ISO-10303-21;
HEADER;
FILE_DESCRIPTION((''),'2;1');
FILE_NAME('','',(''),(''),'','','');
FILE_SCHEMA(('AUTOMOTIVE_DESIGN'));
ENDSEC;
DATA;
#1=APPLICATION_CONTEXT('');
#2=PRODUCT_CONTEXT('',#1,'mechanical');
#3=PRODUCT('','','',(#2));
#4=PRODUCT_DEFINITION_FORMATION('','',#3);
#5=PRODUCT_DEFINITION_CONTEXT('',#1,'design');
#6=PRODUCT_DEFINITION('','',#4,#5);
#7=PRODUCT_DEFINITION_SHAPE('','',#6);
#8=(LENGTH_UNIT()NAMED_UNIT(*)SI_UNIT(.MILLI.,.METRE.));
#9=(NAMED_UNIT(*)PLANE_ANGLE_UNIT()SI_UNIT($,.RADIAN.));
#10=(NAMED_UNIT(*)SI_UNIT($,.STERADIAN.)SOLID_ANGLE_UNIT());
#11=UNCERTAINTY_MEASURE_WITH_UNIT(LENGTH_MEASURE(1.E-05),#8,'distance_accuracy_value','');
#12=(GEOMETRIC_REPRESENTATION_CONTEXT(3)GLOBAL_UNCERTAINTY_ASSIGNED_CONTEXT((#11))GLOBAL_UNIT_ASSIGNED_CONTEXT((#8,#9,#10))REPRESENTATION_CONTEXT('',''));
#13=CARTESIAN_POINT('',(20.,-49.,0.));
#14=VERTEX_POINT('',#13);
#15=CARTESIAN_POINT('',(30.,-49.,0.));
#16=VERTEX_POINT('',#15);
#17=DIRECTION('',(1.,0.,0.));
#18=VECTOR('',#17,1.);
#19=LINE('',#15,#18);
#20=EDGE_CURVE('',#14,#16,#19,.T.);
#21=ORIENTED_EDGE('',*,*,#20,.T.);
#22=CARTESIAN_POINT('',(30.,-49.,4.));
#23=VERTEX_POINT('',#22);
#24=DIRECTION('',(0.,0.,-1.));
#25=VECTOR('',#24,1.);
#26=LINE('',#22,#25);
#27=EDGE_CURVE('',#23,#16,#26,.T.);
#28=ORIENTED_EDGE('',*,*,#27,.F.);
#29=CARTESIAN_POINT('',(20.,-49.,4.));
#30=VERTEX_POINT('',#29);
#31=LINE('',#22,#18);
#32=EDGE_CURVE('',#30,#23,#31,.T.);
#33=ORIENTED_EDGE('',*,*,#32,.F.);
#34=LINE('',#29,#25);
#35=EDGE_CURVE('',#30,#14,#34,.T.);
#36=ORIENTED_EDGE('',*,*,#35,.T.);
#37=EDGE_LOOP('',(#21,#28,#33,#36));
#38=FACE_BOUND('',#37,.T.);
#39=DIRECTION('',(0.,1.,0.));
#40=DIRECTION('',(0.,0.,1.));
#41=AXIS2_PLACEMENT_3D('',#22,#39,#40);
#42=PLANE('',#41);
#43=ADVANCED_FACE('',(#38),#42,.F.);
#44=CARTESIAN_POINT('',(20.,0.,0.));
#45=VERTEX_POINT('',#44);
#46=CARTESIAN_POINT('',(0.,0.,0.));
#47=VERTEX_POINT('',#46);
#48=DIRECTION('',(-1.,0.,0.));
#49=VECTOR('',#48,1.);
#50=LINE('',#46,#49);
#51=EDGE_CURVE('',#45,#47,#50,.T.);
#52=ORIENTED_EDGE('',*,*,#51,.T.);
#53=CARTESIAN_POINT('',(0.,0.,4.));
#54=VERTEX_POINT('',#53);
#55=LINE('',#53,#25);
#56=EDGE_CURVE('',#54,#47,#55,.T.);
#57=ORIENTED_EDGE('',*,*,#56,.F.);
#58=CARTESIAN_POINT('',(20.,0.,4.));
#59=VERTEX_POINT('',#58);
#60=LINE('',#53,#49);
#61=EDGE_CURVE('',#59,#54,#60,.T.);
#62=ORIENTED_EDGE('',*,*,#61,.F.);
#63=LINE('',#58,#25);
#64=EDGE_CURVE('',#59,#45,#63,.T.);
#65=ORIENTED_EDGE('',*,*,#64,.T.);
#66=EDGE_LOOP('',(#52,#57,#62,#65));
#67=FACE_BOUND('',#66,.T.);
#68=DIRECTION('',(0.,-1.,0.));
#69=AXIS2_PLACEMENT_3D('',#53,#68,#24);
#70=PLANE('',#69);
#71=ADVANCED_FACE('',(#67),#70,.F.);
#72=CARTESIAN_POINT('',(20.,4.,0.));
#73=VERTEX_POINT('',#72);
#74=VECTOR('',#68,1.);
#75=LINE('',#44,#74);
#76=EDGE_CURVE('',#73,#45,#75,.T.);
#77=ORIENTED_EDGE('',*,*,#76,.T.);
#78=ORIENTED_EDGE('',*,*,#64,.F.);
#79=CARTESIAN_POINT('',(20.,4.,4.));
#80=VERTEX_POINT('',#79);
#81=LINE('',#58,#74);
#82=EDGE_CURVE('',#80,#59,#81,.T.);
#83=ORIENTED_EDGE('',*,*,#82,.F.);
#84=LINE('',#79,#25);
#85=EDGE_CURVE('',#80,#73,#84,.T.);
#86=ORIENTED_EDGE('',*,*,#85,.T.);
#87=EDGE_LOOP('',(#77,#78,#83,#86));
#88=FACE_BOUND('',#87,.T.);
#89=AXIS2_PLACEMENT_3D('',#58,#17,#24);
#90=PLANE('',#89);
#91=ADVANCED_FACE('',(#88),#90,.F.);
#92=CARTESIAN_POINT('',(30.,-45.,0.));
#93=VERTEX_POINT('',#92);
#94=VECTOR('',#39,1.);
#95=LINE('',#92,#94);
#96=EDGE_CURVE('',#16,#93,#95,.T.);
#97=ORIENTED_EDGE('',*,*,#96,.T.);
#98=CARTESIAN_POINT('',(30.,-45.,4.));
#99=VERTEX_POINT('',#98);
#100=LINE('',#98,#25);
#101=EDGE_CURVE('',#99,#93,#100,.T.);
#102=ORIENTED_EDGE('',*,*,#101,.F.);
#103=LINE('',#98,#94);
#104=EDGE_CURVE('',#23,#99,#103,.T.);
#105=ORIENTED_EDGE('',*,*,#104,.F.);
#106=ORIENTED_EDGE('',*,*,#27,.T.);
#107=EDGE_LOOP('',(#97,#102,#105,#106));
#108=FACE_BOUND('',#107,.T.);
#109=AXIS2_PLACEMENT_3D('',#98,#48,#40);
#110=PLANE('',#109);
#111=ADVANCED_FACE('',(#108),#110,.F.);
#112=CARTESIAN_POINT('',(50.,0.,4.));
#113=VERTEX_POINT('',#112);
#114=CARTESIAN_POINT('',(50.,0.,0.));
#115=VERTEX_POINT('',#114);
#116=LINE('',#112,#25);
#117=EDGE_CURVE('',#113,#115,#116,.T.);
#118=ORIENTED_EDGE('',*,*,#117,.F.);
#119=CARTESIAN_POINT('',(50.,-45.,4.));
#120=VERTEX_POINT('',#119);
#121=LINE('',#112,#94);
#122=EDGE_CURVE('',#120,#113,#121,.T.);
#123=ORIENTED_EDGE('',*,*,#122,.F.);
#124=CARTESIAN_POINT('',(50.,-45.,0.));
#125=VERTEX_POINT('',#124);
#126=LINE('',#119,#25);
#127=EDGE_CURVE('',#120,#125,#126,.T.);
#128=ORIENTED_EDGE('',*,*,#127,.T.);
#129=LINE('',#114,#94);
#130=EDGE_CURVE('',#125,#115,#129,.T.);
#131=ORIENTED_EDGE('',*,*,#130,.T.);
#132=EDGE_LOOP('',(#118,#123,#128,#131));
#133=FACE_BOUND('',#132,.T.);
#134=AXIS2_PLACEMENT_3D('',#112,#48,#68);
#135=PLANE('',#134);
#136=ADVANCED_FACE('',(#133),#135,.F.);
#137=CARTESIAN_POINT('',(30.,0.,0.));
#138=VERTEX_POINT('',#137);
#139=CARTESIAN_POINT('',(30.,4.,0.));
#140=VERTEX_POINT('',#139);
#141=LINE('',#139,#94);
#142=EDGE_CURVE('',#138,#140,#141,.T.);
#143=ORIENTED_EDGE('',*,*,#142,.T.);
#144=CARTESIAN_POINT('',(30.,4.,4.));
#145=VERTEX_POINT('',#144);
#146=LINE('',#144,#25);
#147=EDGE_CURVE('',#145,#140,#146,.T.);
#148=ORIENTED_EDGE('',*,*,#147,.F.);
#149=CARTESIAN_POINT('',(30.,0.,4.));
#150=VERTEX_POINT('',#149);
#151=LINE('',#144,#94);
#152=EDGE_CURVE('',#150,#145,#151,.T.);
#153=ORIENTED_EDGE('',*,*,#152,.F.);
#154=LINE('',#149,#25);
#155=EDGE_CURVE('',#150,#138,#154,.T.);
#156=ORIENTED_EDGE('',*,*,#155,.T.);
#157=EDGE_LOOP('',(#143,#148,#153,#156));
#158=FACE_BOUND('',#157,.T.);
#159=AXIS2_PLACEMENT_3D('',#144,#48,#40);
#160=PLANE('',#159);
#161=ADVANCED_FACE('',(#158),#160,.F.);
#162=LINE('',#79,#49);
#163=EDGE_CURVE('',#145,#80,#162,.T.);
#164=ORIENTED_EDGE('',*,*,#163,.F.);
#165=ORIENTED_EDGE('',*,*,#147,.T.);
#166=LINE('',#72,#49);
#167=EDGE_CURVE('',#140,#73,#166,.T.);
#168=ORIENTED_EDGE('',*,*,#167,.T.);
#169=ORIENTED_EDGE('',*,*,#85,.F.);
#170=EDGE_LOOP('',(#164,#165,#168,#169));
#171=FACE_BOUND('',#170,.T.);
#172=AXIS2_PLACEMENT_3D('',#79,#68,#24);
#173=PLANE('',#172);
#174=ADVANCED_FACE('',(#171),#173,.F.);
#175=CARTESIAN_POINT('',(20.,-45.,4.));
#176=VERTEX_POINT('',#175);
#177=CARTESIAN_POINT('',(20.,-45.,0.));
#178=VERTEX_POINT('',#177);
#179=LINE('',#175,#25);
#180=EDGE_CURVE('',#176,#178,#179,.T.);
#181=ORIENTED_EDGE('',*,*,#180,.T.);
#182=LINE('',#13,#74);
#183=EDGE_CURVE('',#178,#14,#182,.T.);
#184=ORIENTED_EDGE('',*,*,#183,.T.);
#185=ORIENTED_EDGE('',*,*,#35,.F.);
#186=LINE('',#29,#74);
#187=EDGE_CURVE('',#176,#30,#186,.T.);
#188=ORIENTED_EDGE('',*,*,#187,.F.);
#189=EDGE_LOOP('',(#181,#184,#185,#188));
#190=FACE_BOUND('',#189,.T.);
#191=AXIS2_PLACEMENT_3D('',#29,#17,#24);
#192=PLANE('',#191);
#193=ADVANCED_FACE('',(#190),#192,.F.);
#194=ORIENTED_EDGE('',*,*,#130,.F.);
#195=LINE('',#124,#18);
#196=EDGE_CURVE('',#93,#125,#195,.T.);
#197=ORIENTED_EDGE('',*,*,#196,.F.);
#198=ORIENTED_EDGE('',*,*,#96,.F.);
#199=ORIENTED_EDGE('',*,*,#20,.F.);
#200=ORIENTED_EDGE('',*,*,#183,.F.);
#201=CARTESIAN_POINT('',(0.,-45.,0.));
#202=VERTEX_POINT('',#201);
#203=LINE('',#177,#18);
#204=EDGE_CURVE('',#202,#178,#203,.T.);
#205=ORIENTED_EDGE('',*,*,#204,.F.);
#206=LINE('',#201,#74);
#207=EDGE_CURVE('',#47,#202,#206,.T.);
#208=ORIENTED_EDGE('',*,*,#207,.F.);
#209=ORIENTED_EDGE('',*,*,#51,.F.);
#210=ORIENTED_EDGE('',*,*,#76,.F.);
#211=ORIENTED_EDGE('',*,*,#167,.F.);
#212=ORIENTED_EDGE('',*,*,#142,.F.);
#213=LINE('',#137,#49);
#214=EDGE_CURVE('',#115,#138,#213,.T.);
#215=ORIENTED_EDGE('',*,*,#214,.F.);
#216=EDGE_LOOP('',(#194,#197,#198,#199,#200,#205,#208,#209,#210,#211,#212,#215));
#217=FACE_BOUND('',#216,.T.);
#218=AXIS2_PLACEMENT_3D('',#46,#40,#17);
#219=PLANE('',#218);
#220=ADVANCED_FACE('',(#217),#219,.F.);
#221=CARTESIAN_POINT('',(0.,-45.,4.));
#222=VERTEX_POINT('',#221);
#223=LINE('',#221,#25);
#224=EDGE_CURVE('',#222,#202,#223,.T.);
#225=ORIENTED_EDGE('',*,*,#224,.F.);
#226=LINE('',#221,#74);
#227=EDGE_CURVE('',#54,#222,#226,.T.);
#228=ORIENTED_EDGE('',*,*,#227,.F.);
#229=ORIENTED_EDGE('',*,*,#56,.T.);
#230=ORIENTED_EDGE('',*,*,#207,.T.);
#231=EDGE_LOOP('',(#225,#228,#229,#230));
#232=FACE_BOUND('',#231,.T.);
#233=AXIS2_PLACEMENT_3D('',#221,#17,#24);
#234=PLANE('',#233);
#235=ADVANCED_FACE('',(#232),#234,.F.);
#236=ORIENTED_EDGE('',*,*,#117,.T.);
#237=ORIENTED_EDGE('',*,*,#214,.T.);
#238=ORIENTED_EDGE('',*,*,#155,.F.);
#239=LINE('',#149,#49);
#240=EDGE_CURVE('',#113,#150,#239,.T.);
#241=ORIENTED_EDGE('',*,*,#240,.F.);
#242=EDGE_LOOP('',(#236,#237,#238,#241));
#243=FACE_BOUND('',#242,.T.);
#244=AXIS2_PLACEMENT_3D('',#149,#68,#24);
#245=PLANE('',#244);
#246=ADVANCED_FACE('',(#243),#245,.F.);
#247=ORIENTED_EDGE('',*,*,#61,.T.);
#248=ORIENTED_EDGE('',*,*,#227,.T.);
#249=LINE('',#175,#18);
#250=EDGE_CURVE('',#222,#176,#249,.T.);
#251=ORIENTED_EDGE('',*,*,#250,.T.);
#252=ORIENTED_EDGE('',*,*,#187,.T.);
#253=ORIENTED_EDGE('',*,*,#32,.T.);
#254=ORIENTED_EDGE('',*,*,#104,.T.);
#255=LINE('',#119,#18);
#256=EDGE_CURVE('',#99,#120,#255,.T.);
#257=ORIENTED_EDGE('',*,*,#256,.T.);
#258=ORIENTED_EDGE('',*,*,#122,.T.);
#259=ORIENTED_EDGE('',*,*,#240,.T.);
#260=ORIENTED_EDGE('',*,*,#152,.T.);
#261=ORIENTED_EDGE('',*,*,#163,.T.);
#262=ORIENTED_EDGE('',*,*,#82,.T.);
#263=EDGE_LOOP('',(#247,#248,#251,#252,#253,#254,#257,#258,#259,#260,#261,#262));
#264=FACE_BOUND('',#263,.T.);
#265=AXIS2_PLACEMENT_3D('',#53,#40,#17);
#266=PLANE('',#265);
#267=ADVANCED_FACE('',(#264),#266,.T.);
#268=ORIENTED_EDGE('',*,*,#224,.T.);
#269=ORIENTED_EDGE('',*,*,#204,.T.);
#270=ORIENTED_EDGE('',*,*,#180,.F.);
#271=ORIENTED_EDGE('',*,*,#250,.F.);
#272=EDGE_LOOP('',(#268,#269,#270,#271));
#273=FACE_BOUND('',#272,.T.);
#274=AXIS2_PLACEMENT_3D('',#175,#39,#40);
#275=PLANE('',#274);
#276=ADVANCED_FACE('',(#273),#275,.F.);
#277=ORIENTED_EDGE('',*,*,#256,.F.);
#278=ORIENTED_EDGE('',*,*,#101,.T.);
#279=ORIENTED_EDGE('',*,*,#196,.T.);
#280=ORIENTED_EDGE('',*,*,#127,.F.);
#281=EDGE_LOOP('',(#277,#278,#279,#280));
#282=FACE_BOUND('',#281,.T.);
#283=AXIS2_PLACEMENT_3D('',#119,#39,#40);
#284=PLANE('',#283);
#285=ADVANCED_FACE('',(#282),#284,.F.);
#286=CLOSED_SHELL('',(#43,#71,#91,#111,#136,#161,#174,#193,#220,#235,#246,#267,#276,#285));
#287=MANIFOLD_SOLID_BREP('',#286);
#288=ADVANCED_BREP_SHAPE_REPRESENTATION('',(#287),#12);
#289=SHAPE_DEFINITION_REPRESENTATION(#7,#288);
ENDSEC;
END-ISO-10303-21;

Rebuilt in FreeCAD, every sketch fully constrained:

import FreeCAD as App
import Part
import Sketcher
from FreeCAD import Vector
Q = App.Units.Quantity

doc = App.newDocument("Part")
params = doc.addObject("Spreadsheet::Sheet", "Params")
for row, (alias, value) in enumerate([
    ("sketch1_width", "20 mm"),
    ("sketch1_width2", "10 mm"),
    ("sketch1_height", "45 mm"),
    ("sketch1_height2", "4 mm"),
    ("pad1_length", "4 mm"),
], start=1):
    params.set(f"A{row}", alias)
    params.set(f"B{row}", "=" + value)
    params.setAlias(f"B{row}", alias)

body = doc.addObject("PartDesign::Body", "Body")

sketch1 = body.newObject("Sketcher::SketchObject", "Sketch")
sketch1.AttachmentSupport = (doc.getObject("XY_Plane"), [""])
sketch1.MapMode = "FlatFace"
sketch1.addGeometry(Part.LineSegment(Vector(50, -45, 0), Vector(50, 0, 0)), False)
sketch1.addGeometry(Part.LineSegment(Vector(50, 0, 0), Vector(30, 0, 0)), False)
sketch1.addGeometry(Part.LineSegment(Vector(30, 0, 0), Vector(30, 4, 0)), False)
sketch1.addGeometry(Part.LineSegment(Vector(30, 4, 0), Vector(20, 4, 0)), False)
sketch1.addGeometry(Part.LineSegment(Vector(20, 4, 0), Vector(20, 0, 0)), False)
sketch1.addGeometry(Part.LineSegment(Vector(20, 0, 0), Vector(0, 0, 0)), False)
sketch1.addGeometry(Part.LineSegment(Vector(0, 0, 0), Vector(0, -45, 0)), False)
sketch1.addGeometry(Part.LineSegment(Vector(0, -45, 0), Vector(20, -45, 0)), False)
sketch1.addGeometry(Part.LineSegment(Vector(20, -45, 0), Vector(20, -49, 0)), False)
sketch1.addGeometry(Part.LineSegment(Vector(20, -49, 0), Vector(30, -49, 0)), False)
sketch1.addGeometry(Part.LineSegment(Vector(30, -49, 0), Vector(30, -45, 0)), False)
sketch1.addGeometry(Part.LineSegment(Vector(30, -45, 0), Vector(50, -45, 0)), False)
sketch1.addConstraint(Sketcher.Constraint("Coincident", 0, 2, 1, 1))
sketch1.addConstraint(Sketcher.Constraint("Coincident", 1, 2, 2, 1))
sketch1.addConstraint(Sketcher.Constraint("Coincident", 2, 2, 3, 1))
sketch1.addConstraint(Sketcher.Constraint("Coincident", 3, 2, 4, 1))
sketch1.addConstraint(Sketcher.Constraint("Coincident", 4, 2, 5, 1))
sketch1.addConstraint(Sketcher.Constraint("Coincident", 5, 2, 6, 1))
sketch1.addConstraint(Sketcher.Constraint("Coincident", 6, 2, 7, 1))
sketch1.addConstraint(Sketcher.Constraint("Coincident", 7, 2, 8, 1))
sketch1.addConstraint(Sketcher.Constraint("Coincident", 8, 2, 9, 1))
sketch1.addConstraint(Sketcher.Constraint("Coincident", 9, 2, 10, 1))
sketch1.addConstraint(Sketcher.Constraint("Coincident", 10, 2, 11, 1))
sketch1.addConstraint(Sketcher.Constraint("Coincident", 11, 2, 0, 1))
sketch1.addConstraint(Sketcher.Constraint("Vertical", 0))
sketch1.addConstraint(Sketcher.Constraint("Horizontal", 1))
sketch1.addConstraint(Sketcher.Constraint("Vertical", 2))
sketch1.addConstraint(Sketcher.Constraint("Horizontal", 3))
sketch1.addConstraint(Sketcher.Constraint("Vertical", 4))
sketch1.addConstraint(Sketcher.Constraint("Horizontal", 5))
sketch1.addConstraint(Sketcher.Constraint("Vertical", 6))
sketch1.addConstraint(Sketcher.Constraint("Horizontal", 7))
sketch1.addConstraint(Sketcher.Constraint("Vertical", 8))
sketch1.addConstraint(Sketcher.Constraint("Horizontal", 9))
sketch1.addConstraint(Sketcher.Constraint("Vertical", 10))
sketch1.addConstraint(Sketcher.Constraint("Horizontal", 11))
sketch1.addConstraint(Sketcher.Constraint("Coincident", 5, 2, -1, 1))
sketch1.addConstraint(Sketcher.Constraint("PointOnObject", 0, 2, -1))
sketch1.addConstraint(Sketcher.Constraint("Horizontal", 7, 2, 10, 2))
sketch1.addConstraint(Sketcher.Constraint("Vertical", 4, 2, 7, 2))
sketch1.addConstraint(Sketcher.Constraint("Vertical", 2, 2, 9, 2))
sketch1.addConstraint(Sketcher.Constraint("Equal", 1, 5))
sketch1.addConstraint(Sketcher.Constraint("Equal", 4, 8))
sketch1.addConstraint(Sketcher.Constraint("DistanceX", 1, 2, 1, 1, Q("20 mm")))
sketch1.addConstraint(Sketcher.Constraint("DistanceX", 3, 2, 3, 1, Q("10 mm")))
sketch1.addConstraint(Sketcher.Constraint("DistanceY", 0, 1, 0, 2, Q("45 mm")))
sketch1.addConstraint(Sketcher.Constraint("DistanceY", 2, 1, 2, 2, Q("4 mm")))
sketch1.setExpression("Constraints[31]", "Params.sketch1_width")
sketch1.setExpression("Constraints[32]", "Params.sketch1_width2")
sketch1.setExpression("Constraints[33]", "Params.sketch1_height")
sketch1.setExpression("Constraints[34]", "Params.sketch1_height2")
pad1 = body.newObject("PartDesign::Pad", "Pad")
pad1.Profile = sketch1
pad1.setExpression("Length", "Params.pad1_length")

doc.recompute()
